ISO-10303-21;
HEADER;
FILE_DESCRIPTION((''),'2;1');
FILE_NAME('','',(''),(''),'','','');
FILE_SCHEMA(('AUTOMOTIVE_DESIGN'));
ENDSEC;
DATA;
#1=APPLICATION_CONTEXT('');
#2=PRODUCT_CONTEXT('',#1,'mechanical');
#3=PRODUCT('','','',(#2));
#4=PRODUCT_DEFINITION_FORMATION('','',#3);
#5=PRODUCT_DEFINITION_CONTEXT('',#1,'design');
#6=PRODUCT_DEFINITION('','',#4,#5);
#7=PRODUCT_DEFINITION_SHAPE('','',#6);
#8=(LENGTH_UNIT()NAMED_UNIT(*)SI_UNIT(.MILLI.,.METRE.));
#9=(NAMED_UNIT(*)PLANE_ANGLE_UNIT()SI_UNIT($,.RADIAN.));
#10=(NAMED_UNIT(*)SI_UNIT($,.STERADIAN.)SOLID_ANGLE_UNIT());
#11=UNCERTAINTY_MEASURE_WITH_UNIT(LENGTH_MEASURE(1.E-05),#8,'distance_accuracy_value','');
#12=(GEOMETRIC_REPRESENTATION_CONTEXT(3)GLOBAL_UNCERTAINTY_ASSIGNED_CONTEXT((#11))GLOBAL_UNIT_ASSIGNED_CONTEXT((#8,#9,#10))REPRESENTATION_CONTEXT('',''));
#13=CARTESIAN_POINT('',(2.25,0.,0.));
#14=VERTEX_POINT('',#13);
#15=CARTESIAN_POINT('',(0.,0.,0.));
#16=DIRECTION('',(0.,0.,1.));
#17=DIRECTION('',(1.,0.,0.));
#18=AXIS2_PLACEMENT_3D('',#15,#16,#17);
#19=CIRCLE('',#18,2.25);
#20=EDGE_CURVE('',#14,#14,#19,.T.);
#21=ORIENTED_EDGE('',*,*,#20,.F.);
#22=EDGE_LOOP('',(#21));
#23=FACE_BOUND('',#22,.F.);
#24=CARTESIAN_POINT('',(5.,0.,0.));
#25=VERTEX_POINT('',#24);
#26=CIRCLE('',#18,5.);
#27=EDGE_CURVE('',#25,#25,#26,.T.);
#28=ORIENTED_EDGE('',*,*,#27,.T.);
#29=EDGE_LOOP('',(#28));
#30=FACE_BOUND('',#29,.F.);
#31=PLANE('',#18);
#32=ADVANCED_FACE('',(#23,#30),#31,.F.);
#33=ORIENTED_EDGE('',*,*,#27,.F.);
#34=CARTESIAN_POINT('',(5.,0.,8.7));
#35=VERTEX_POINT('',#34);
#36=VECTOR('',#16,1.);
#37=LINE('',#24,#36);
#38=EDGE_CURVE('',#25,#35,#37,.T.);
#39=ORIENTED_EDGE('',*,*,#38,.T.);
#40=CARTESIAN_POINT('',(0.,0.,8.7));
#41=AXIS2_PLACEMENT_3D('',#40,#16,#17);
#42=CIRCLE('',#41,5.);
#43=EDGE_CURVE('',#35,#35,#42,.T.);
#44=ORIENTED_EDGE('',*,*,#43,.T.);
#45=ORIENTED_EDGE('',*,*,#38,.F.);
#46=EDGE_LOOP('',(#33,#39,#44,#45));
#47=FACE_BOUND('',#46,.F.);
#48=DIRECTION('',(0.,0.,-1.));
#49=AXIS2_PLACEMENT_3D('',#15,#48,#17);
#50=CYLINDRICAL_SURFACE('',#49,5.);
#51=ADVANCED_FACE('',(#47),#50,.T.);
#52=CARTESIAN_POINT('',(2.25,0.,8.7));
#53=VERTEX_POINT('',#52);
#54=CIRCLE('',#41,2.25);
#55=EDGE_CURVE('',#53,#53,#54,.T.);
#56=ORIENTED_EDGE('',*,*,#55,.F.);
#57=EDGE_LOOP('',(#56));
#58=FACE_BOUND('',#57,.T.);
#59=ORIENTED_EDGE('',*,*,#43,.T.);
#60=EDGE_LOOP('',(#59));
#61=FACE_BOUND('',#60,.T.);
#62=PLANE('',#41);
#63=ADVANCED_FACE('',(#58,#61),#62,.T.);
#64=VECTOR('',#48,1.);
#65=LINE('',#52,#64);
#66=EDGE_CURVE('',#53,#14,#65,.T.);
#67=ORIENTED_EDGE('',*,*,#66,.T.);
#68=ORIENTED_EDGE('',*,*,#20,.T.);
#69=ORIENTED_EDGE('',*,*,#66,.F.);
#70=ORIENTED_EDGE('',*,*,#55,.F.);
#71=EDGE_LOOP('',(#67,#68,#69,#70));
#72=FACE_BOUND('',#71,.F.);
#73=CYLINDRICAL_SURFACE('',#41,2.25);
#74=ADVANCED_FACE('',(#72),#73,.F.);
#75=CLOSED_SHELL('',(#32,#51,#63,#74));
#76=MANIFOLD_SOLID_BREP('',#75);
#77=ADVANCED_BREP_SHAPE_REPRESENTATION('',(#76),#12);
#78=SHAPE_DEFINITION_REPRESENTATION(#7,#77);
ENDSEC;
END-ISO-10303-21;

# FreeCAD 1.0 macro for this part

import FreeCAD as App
import Part
import Sketcher
Q = App.Units.Quantity

doc = App.newDocument("Part")
body = doc.addObject("PartDesign::Body", "Body")

# Sketch on XY plane
sketch1 = body.newObject("Sketcher::SketchObject", "Sketch")
sketch1.AttachmentSupport = (doc.getObject("XY_Plane"), [""])
sketch1.MapMode = "FlatFace"
sketch1.addGeometry(Part.Circle(App.Vector(0, 0, 0), App.Vector(0, 0, 1), 5), False)
sketch1.addConstraint([
    Sketcher.Constraint("Coincident", 0, 3, -1, 1),
    Sketcher.Constraint("Diameter", 0, Q("10 mm")),
])
pad1 = body.newObject("PartDesign::Pad", "Pad")
pad1.Profile = sketch1
pad1.Length = 8.7

# Sketch on XY plane
sketch2 = body.newObject("Sketcher::SketchObject", "Sketch001")
sketch2.AttachmentSupport = (doc.getObject("XY_Plane"), [""])
sketch2.MapMode = "FlatFace"
sketch2.AttachmentOffset = App.Placement(App.Vector(0, 0, 8.7), App.Rotation())
sketch2.addGeometry(Part.Circle(App.Vector(0, 0, 0), App.Vector(0, 0, 1), 2.25), False)
sketch2.addConstraint([
    Sketcher.Constraint("Coincident", 0, 3, -1, 1),
    Sketcher.Constraint("Diameter", 0, Q("4.5 mm")),
])
pocket1 = body.newObject("PartDesign::Pocket", "Pocket")
pocket1.Profile = sketch2
pocket1.Type = "ThroughAll"

doc.recompute()
